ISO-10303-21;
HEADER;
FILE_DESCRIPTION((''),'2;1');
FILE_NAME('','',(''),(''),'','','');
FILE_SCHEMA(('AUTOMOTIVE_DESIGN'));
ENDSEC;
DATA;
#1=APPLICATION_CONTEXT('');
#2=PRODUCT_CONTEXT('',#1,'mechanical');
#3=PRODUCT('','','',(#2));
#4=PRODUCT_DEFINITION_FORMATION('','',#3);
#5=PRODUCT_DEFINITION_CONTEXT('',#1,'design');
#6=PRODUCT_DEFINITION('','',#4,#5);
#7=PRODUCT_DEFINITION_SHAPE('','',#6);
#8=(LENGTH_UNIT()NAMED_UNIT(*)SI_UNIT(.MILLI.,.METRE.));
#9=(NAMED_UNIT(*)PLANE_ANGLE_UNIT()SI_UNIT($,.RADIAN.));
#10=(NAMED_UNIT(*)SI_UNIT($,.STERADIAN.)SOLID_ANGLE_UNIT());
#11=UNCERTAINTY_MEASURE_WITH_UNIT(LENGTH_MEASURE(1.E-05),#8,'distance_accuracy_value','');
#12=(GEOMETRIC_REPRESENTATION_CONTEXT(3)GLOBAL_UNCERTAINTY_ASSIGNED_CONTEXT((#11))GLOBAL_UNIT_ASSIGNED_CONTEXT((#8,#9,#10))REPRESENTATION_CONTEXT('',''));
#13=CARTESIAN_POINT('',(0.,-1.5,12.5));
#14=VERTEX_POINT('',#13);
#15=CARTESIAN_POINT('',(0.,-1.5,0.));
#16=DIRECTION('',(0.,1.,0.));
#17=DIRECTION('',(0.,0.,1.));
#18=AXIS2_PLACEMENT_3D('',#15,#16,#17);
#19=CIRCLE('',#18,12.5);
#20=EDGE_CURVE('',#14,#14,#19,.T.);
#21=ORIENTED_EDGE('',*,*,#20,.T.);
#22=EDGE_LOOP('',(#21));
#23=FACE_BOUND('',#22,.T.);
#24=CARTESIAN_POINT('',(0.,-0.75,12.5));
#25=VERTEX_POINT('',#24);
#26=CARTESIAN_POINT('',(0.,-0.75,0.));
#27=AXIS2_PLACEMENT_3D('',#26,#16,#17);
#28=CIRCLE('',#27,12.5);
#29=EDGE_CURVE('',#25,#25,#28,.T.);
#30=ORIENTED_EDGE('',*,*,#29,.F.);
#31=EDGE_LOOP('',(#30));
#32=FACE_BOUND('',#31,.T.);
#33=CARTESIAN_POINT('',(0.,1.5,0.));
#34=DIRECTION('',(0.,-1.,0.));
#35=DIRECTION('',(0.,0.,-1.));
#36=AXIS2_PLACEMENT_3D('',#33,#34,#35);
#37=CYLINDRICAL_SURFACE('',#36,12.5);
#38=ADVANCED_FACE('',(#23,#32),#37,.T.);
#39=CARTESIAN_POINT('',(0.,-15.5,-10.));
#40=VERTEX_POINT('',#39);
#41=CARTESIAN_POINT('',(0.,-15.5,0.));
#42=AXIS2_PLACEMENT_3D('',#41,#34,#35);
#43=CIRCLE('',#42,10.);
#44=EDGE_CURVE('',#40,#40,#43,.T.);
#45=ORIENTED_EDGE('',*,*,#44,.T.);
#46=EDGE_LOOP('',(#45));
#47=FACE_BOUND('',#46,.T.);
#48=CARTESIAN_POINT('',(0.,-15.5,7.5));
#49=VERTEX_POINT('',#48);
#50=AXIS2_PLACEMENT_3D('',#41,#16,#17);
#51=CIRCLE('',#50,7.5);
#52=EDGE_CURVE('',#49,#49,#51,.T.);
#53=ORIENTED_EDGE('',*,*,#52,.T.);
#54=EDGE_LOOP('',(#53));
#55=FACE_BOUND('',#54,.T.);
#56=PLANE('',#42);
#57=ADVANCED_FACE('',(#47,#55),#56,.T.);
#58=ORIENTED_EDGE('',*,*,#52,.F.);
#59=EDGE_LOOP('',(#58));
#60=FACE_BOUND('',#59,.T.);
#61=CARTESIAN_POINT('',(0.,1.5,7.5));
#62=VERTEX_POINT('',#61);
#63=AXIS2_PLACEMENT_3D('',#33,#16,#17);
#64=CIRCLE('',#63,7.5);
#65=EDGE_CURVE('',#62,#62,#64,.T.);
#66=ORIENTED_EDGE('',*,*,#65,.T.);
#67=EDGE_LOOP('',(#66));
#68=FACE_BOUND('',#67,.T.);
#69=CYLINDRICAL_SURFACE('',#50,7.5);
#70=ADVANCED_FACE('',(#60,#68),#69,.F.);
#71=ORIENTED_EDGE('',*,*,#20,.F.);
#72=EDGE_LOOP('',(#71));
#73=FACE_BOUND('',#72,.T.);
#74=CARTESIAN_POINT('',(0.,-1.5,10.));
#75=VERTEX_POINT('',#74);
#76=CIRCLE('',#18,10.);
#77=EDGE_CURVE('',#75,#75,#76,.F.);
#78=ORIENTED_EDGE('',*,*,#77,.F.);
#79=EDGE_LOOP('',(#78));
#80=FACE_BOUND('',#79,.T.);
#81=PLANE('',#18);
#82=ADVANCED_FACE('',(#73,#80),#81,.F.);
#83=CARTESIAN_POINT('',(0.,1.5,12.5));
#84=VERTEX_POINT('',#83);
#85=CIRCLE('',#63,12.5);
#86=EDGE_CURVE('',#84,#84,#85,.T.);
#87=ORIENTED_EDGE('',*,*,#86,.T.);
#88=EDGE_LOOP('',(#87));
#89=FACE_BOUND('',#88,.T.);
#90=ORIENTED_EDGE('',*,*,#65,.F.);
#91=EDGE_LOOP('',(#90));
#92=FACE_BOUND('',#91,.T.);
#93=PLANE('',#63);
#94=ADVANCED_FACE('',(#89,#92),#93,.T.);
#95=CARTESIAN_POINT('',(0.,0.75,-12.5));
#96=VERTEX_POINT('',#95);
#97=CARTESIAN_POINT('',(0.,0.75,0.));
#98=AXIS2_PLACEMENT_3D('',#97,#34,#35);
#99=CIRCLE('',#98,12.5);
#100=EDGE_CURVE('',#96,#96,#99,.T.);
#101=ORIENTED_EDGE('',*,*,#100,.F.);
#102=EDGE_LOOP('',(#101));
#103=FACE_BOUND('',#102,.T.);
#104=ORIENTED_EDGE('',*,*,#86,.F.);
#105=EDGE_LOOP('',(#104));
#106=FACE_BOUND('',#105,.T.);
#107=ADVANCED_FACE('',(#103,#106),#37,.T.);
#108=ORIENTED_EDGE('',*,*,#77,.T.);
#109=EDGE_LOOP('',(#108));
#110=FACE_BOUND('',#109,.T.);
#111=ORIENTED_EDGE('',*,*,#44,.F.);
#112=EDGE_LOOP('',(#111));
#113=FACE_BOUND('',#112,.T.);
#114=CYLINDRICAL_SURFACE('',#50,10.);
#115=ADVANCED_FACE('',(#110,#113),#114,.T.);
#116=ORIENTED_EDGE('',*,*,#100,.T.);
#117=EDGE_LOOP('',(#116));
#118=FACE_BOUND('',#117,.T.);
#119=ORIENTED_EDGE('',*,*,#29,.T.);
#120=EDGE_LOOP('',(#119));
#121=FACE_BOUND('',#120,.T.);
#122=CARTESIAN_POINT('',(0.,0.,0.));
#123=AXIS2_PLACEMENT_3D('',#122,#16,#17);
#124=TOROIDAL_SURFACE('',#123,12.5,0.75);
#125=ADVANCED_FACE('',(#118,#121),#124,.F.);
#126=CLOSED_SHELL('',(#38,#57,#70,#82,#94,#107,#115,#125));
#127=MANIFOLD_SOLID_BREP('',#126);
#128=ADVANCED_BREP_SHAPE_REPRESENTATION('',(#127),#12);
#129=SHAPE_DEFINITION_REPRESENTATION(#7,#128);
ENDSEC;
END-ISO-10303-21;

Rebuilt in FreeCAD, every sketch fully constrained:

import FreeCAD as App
import Part
import Sketcher
Q = App.Units.Quantity

doc = App.newDocument("Part")
params = doc.addObject("Spreadsheet::Sheet", "Params")
for row, (alias, value) in enumerate([
    ("sketch1_diameter", "25 mm"),
    ("pad1_length", "3 mm"),
    ("sketch2_diameter", "1.5 mm"),
    ("groove_angle", "360 deg"),
    ("sketch3_diameter", "20 mm"),
    ("pad2_length", "14 mm"),
    ("sketch4_diameter", "15 mm"),
], start=1):
    params.set(f"A{row}", alias)
    params.set(f"B{row}", "=" + value)
    params.setAlias(f"B{row}", alias)

body = doc.addObject("PartDesign::Body", "Body")

# Sketch on XZ plane
sketch1 = body.newObject("Sketcher::SketchObject", "Sketch")
sketch1.AttachmentSupport = (doc.getObject("XZ_Plane"), [""])
sketch1.MapMode = "FlatFace"
sketch1.addGeometry(Part.Circle(App.Vector(0, 0, 0), App.Vector(0, 0, 1), 12), False)
sketch1.addConstraint([
    Sketcher.Constraint("Coincident", 0, 3, -1, 1),
    Sketcher.Constraint("Diameter", 0, Q("25 mm")),
])
sketch1.setExpression("Constraints[1]", "Params.sketch1_diameter")
pad1 = body.newObject("PartDesign::Pad", "Pad")
pad1.Profile = sketch1
pad1.setExpression("Length", "Params.pad1_length")
pad1.Midplane = True

# Sketch on YZ plane
sketch2 = body.newObject("Sketcher::SketchObject", "Sketch001")
sketch2.AttachmentSupport = (doc.getObject("YZ_Plane"), [""])
sketch2.MapMode = "FlatFace"
sketch2.addGeometry(Part.Circle(App.Vector(0, -12.5, 0), App.Vector(0, 0, 1), 0.8), False)
sketch2.addConstraint([
    Sketcher.Constraint("PointOnObject", 0, 3, -2),
    Sketcher.Constraint("Diameter", 0, Q("1.5 mm")),
    Sketcher.Constraint("DistanceY", 0, 3, -1, 1, Q("12.5 mm")),
])
sketch2.setExpression("Constraints[1]", "Params.sketch2_diameter")
groove = body.newObject("PartDesign::Groove", "Groove")
groove.Profile = sketch2
groove.ReferenceAxis = (sketch2, ["H_Axis"])
groove.setExpression("Angle", "Params.groove_angle")

# Sketch on XZ plane
sketch3 = body.newObject("Sketcher::SketchObject", "Sketch002")
sketch3.AttachmentSupport = (doc.getObject("XZ_Plane"), [""])
sketch3.MapMode = "FlatFace"
sketch3.AttachmentOffset = App.Placement(App.Vector(0, 0, 1.5), App.Rotation())
sketch3.addGeometry(Part.Circle(App.Vector(0, 0, 0), App.Vector(0, 0, 1), 10), False)
sketch3.addConstraint([
    Sketcher.Constraint("Coincident", 0, 3, -1, 1),
    Sketcher.Constraint("Diameter", 0, Q("20 mm")),
])
sketch3.setExpression("Constraints[1]", "Params.sketch3_diameter")
pad2 = body.newObject("PartDesign::Pad", "Pad001")
pad2.Profile = sketch3
pad2.setExpression("Length", "Params.pad2_length")

# Sketch on XZ plane
sketch4 = body.newObject("Sketcher::SketchObject", "Sketch003")
sketch4.AttachmentSupport = (doc.getObject("XZ_Plane"), [""])
sketch4.MapMode = "FlatFace"
sketch4.AttachmentOffset = App.Placement(App.Vector(0, 0, -1.5), App.Rotation())
sketch4.addGeometry(Part.Circle(App.Vector(0, 0, 0), App.Vector(0, 0, 1), 8), False)
sketch4.addConstraint([
    Sketcher.Constraint("Coincident", 0, 3, -1, 1),
    Sketcher.Constraint("Diameter", 0, Q("15 mm")),
])
sketch4.setExpression("Constraints[1]", "Params.sketch4_diameter")
pocket1 = body.newObject("PartDesign::Pocket", "Pocket")
pocket1.Profile = sketch4
pocket1.Type = "ThroughAll"
pocket1.Reversed = True

doc.recompute()
